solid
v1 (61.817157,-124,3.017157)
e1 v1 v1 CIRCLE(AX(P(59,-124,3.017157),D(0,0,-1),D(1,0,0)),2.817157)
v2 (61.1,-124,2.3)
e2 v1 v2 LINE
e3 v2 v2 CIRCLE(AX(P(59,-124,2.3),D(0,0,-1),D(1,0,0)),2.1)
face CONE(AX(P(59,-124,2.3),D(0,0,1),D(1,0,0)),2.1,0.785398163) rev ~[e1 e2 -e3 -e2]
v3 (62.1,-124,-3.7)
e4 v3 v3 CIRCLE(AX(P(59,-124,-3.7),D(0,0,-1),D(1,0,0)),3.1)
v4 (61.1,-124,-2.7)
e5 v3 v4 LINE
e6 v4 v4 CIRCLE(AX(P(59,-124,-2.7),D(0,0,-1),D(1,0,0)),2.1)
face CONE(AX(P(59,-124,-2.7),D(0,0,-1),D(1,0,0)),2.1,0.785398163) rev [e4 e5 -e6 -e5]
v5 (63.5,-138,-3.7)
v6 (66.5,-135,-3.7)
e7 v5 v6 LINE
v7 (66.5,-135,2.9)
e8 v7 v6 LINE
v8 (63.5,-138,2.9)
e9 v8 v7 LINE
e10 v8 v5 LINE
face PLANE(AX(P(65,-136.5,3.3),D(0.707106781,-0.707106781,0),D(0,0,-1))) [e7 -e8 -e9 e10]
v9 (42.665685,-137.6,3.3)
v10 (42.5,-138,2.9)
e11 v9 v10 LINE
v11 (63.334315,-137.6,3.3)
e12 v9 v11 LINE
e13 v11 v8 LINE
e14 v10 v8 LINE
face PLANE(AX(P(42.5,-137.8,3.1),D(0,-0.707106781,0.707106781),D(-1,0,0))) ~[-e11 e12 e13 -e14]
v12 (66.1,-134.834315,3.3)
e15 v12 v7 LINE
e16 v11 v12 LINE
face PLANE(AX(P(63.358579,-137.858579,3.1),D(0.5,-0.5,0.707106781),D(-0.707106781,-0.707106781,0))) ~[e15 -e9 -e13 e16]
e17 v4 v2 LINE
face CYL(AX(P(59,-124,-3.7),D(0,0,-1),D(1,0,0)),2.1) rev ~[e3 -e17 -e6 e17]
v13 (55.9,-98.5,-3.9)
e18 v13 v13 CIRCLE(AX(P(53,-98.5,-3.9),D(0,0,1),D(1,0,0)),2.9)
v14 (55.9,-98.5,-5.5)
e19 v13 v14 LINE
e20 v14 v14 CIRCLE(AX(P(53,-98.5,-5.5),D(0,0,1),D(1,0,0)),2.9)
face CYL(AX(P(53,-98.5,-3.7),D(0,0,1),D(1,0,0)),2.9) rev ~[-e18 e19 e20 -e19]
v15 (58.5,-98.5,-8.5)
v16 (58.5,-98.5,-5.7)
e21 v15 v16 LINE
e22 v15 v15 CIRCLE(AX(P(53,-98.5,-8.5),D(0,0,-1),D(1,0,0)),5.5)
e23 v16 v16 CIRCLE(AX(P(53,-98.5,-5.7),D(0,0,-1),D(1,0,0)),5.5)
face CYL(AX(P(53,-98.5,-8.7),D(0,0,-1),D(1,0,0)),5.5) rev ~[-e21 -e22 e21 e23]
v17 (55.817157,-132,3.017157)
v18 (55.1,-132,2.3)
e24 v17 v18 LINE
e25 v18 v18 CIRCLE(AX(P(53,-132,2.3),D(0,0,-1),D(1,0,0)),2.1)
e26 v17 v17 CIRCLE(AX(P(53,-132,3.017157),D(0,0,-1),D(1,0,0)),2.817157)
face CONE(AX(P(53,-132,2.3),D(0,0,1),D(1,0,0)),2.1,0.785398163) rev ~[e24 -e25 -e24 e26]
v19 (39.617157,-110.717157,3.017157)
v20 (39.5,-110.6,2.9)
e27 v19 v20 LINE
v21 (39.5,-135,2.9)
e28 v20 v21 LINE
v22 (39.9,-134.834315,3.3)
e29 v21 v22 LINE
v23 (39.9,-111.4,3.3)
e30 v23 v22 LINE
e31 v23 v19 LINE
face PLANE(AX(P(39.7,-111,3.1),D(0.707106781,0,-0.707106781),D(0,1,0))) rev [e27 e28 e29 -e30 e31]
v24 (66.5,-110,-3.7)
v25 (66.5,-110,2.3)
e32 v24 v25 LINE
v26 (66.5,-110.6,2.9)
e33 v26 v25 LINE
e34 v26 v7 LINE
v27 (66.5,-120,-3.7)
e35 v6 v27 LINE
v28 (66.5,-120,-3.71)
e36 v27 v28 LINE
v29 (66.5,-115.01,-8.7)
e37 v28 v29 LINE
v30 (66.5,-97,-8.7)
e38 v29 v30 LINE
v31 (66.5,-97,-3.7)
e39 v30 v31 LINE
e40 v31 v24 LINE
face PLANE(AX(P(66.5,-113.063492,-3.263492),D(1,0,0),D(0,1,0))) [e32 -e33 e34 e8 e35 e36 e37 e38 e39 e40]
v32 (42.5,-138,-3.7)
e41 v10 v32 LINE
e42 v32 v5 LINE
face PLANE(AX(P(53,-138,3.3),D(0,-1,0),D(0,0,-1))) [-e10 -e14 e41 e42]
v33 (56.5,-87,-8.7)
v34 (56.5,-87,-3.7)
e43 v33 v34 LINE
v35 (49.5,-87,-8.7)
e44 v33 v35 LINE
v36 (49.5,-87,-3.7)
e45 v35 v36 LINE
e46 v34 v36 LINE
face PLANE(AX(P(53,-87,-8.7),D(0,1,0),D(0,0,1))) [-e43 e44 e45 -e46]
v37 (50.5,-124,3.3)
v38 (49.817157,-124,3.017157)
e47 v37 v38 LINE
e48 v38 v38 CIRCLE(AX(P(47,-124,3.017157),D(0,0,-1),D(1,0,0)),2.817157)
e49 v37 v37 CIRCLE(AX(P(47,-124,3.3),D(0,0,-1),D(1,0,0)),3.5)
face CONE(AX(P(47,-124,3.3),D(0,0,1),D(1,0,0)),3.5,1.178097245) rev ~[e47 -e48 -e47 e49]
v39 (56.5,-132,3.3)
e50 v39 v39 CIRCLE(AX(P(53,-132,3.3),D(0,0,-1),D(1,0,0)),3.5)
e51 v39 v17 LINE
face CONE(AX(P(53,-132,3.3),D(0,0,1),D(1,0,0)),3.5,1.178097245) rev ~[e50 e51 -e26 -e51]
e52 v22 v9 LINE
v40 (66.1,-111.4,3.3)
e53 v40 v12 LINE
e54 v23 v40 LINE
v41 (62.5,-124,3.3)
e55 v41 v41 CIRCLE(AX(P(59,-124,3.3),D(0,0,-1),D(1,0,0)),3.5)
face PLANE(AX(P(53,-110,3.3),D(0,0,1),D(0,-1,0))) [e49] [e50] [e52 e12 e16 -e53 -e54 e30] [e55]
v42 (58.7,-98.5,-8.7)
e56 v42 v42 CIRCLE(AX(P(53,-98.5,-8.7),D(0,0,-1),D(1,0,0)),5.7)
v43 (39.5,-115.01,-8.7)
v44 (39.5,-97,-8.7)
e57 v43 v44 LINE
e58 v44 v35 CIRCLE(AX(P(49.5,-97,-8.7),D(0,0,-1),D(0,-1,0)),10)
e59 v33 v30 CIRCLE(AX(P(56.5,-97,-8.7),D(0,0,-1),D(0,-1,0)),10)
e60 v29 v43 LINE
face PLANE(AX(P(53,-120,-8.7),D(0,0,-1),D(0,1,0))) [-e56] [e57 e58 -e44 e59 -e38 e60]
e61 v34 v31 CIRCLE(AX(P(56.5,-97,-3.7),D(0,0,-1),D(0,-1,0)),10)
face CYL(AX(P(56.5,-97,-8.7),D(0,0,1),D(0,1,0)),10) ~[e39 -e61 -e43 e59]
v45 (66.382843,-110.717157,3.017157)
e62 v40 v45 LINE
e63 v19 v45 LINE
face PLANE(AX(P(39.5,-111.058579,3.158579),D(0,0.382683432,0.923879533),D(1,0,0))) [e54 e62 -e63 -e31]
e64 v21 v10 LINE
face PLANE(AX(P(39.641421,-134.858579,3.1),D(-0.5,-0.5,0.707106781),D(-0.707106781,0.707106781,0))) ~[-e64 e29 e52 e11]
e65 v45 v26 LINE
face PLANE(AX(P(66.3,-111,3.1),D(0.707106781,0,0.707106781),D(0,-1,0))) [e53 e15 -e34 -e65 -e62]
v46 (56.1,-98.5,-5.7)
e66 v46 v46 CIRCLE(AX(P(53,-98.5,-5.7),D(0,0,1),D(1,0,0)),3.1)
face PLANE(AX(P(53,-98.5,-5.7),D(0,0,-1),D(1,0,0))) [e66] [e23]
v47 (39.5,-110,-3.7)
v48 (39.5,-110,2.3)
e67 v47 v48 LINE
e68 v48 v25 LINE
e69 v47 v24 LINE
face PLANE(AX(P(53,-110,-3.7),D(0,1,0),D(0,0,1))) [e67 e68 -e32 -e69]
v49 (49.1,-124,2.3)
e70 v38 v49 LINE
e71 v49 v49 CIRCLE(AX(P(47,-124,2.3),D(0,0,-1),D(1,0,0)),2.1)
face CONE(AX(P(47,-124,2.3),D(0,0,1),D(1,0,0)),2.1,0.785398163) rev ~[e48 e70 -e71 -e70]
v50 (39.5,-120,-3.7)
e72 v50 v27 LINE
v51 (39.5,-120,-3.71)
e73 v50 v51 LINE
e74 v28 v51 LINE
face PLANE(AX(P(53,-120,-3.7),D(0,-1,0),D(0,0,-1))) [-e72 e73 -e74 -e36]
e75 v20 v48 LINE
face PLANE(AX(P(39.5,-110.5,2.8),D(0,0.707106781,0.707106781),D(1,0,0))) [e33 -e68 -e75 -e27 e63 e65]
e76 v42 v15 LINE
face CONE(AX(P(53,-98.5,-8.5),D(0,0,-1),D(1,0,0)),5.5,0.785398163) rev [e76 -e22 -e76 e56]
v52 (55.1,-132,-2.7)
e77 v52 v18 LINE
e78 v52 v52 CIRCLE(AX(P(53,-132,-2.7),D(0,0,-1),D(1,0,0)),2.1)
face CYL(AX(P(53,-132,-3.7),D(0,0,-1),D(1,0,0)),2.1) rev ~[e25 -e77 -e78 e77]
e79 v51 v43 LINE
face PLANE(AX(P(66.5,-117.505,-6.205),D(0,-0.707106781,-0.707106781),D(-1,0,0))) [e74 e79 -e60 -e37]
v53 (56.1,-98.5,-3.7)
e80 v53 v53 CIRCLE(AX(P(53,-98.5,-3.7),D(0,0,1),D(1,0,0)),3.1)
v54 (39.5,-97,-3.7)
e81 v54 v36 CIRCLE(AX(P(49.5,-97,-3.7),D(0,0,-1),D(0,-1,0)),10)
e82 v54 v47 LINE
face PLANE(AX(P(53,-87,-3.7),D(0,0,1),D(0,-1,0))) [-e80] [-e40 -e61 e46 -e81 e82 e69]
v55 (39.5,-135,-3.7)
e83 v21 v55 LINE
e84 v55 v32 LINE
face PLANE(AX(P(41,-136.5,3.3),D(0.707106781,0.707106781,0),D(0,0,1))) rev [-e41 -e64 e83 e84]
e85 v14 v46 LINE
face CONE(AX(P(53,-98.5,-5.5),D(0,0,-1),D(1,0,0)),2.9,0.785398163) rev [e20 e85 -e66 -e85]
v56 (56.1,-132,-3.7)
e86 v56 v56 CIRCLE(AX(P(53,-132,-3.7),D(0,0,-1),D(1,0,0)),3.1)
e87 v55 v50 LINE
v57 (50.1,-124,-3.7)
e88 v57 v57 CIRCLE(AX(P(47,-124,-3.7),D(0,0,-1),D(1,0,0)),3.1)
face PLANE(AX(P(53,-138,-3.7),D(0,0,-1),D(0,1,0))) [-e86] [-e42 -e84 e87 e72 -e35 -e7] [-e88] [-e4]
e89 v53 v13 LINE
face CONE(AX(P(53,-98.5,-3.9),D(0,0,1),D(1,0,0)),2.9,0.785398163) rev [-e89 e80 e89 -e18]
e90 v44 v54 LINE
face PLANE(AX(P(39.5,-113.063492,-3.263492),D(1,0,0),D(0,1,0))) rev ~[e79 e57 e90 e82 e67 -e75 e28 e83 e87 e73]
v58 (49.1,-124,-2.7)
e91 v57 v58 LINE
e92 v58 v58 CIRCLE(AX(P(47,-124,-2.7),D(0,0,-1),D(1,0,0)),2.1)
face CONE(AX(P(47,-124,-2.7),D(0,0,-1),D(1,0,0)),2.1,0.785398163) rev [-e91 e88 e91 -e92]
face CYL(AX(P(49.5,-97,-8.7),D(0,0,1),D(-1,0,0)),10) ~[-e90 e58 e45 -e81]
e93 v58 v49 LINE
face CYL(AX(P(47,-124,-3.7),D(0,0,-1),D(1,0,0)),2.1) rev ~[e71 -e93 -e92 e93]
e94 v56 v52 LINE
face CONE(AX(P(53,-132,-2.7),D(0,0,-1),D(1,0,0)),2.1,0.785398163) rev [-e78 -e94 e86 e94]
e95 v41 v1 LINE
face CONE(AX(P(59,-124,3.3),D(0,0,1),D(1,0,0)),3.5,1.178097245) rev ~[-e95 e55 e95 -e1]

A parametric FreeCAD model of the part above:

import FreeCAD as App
import Part
import Sketcher
Q = App.Units.Quantity


def edges_at(feature, points):
    """Names of the edges that pass closest to the given points."""
    edges = feature.Shape.Edges
    near = lambda p: min(range(len(edges)), key=lambda i: edges[i].distToShape(Part.Vertex(*p))[0])
    return sorted({f"Edge{near(p) + 1}" for p in points})


def add_polygon(sketch, points):
    """Adds a closed chain of lines whose ends are joined by coincident constraints."""
    first, n = sketch.GeometryCount, len(points)
    for a, b in zip(points, points[1:] + points[:1]):
        sketch.addGeometry(Part.LineSegment(App.Vector(*a, 0), App.Vector(*b, 0)), False)
    for i in range(n):
        sketch.addConstraint(Sketcher.Constraint("Coincident", first + i, 2, first + (i + 1) % n, 1))

doc = App.newDocument("Part")
body = doc.addObject("PartDesign::Body", "Body")

sketch1 = body.newObject("Sketcher::SketchObject", "Sketch")
sketch1.AttachmentSupport = (doc.getObject("YZ_Plane"), [""])
sketch1.MapMode = "FlatFace"
add_polygon(sketch1, [(23, 0), (0, 0), (0, 7), (-28, 7), (-28, 0), (-10, 0), (-10, -5), (23, -5)])
sketch1.addConstraint(Sketcher.Constraint("Horizontal", 0))
sketch1.addConstraint(Sketcher.Constraint("Vertical", 1))
sketch1.addConstraint(Sketcher.Constraint("Horizontal", 2))
sketch1.addConstraint(Sketcher.Constraint("Vertical", 3))
sketch1.addConstraint(Sketcher.Constraint("Horizontal", 4))
sketch1.addConstraint(Sketcher.Constraint("Vertical", 5))
sketch1.addConstraint(Sketcher.Constraint("Horizontal", 6))
sketch1.addConstraint(Sketcher.Constraint("Vertical", 7))
sketch1.addConstraint(Sketcher.Constraint("Coincident", 0, 2, -1, 1))
sketch1.addConstraint(Sketcher.Constraint("PointOnObject", 3, 2, -1))
sketch1.addConstraint(Sketcher.Constraint("DistanceX", 0, 2, 0, 1, Q("23 mm")))
sketch1.addConstraint(Sketcher.Constraint("DistanceX", 2, 2, 2, 1, Q("28 mm")))
sketch1.addConstraint(Sketcher.Constraint("DistanceX", 4, 1, 4, 2, Q("18 mm")))
sketch1.addConstraint(Sketcher.Constraint("DistanceY", 1, 1, 1, 2, Q("7 mm")))
sketch1.addConstraint(Sketcher.Constraint("DistanceY", 5, 2, 5, 1, Q("5 mm")))
pad1 = body.newObject("PartDesign::Pad", "Pad")
pad1.Profile = sketch1
pad1.Length = 27
pad1.Midplane = True

sketch2 = body.newObject("Sketcher::SketchObject", "Sketch001")
sketch2.AttachmentSupport = (doc.getObject("XY_Plane"), [""])
sketch2.MapMode = "FlatFace"
sketch2.addGeometry(Part.Circle(App.Vector(0, 11.5, 0), App.Vector(0, 0, 1), 2.9), False)
sketch2.addConstraint(Sketcher.Constraint("PointOnObject", 0, 3, -2))
sketch2.addConstraint(Sketcher.Constraint("Diameter", 0, Q("5.8 mm")))
sketch2.addConstraint(Sketcher.Constraint("DistanceY", -1, 1, 0, 3, Q("11.5 mm")))
pocket1 = body.newObject("PartDesign::Pocket", "Pocket")
pocket1.Profile = sketch2
pocket1.Type = "ThroughAll"

sketch3 = body.newObject("Sketcher::SketchObject", "Sketch002")
sketch3.AttachmentSupport = (doc.getObject("XY_Plane"), [""])
sketch3.MapMode = "FlatFace"
sketch3.AttachmentOffset = App.Placement(App.Vector(0, 0, -5), App.Rotation())
sketch3.addGeometry(Part.Circle(App.Vector(0, 12, 0), App.Vector(0, 0, 1), 6), False)
sketch3.addConstraint(Sketcher.Constraint("PointOnObject", 0, 3, -2))
sketch3.addConstraint(Sketcher.Constraint("Diameter", 0, Q("11 mm")))
sketch3.addConstraint(Sketcher.Constraint("DistanceY", -1, 1, 0, 3, Q("11.5 mm")))
pocket2 = body.newObject("PartDesign::Pocket", "Pocket001")
pocket2.Profile = sketch3
pocket2.Length = 3
pocket2.Reversed = True

sketch4 = body.newObject("Sketcher::SketchObject", "Sketch003")
sketch4.AttachmentSupport = (doc.getObject("XY_Plane"), [""])
sketch4.MapMode = "FlatFace"
sketch4.addGeometry(Part.Circle(App.Vector(0, -22, 0), App.Vector(0, 0, 1), 2.1), False)
sketch4.addGeometry(Part.Circle(App.Vector(-6, -14, 0), App.Vector(0, 0, 1), 2.1), False)
sketch4.addGeometry(Part.Circle(App.Vector(6, -14, 0), App.Vector(0, 0, 1), 2.1), False)
sketch4.addConstraint(Sketcher.Constraint("Equal", 0, 1))
sketch4.addConstraint(Sketcher.Constraint("Equal", 1, 2))
sketch4.addConstraint(Sketcher.Constraint("Symmetric", 1, 3, 2, 3, -2))
sketch4.addConstraint(Sketcher.Constraint("PointOnObject", 0, 3, -2))
sketch4.addConstraint(Sketcher.Constraint("Diameter", 0, Q("4.2 mm")))
sketch4.addConstraint(Sketcher.Constraint("DistanceY", 0, 3, -1, 1, Q("22 mm")))
sketch4.addConstraint(Sketcher.Constraint("DistanceX", 1, 3, -1, 1, Q("6 mm")))
sketch4.addConstraint(Sketcher.Constraint("DistanceY", 1, 3, -1, 1, Q("14 mm")))
pocket3 = body.newObject("PartDesign::Pocket", "Pocket002")
pocket3.Profile = sketch4
pocket3.Type = "ThroughAll"
pocket3.Reversed = True
doc.recompute()

chamfer = body.newObject("PartDesign::Chamfer", "Chamfer")
chamfer.Base = (pocket3, edges_at(pocket3, [(0, -10, -5)]))
chamfer.Size = 4.99
doc.recompute()

fillet = body.newObject("PartDesign::Fillet", "Fillet")
fillet.Base = (chamfer, edges_at(chamfer, [(13.5, 23, -2.5), (-13.5, 23, -2.5)]))
fillet.Radius = 10
doc.recompute()

chamfer2 = body.newObject("PartDesign::Chamfer", "Chamfer001")
chamfer2.Base = (fillet, edges_at(fillet, [(13.5, -28, 3.5), (-13.5, -28, 3.5)]))
chamfer2.Size = 3
doc.recompute()

chamfer3 = body.newObject("PartDesign::Chamfer", "Chamfer002")
chamfer3.Base = (chamfer2, edges_at(chamfer2, [(-2.9, 11.5, 0), (-2.9, 11.5, -2), (-5.5, 11.5, -5)]))
chamfer3.Size = 0.2
doc.recompute()

chamfer4 = body.newObject("PartDesign::Chamfer", "Chamfer003")
chamfer4.Base = (chamfer3, edges_at(chamfer3, [
    (3.9, -14, 0),
    (3.9, -14, 7),
    (-2.1, -22, 7),
    (-2.1, -22, 0),
    (-8.1, -14, 0),
    (-8.1, -14, 7),
]))
chamfer4.Size = 1
doc.recompute()

chamfer5 = body.newObject("PartDesign::Chamfer", "Chamfer004")
chamfer5.Base = (chamfer4, edges_at(chamfer4, [(0, 0, 7)]))
chamfer5.Size = 1
doc.recompute()

chamfer6 = body.newObject("PartDesign::Chamfer", "Chamfer005")
chamfer6.Base = (chamfer5, edges_at(chamfer5, [
    (-13.5, -13, 7),
    (0, -1, 7),
    (-12, -26.5, 7),
    (13.5, -13, 7),
    (0, -28, 7),
    (12, -26.5, 7),
    (2.9, -14, 7),
    (-3.1, -22, 7),
    (-9.1, -14, 7),
]))
chamfer6.Size = 0.4
body2 = doc.addObject("PartDesign::Body", "Body001")
doc.recompute()

body.Placement = App.Placement(App.Vector(53, -110, -3.7), App.Rotation(App.Vector(0, 0, 1), 0))
boolean = body2.newObject("PartDesign::Boolean", "Boolean")
boolean.Type = "Fuse"
boolean.addObjects([body])

doc.recompute()
